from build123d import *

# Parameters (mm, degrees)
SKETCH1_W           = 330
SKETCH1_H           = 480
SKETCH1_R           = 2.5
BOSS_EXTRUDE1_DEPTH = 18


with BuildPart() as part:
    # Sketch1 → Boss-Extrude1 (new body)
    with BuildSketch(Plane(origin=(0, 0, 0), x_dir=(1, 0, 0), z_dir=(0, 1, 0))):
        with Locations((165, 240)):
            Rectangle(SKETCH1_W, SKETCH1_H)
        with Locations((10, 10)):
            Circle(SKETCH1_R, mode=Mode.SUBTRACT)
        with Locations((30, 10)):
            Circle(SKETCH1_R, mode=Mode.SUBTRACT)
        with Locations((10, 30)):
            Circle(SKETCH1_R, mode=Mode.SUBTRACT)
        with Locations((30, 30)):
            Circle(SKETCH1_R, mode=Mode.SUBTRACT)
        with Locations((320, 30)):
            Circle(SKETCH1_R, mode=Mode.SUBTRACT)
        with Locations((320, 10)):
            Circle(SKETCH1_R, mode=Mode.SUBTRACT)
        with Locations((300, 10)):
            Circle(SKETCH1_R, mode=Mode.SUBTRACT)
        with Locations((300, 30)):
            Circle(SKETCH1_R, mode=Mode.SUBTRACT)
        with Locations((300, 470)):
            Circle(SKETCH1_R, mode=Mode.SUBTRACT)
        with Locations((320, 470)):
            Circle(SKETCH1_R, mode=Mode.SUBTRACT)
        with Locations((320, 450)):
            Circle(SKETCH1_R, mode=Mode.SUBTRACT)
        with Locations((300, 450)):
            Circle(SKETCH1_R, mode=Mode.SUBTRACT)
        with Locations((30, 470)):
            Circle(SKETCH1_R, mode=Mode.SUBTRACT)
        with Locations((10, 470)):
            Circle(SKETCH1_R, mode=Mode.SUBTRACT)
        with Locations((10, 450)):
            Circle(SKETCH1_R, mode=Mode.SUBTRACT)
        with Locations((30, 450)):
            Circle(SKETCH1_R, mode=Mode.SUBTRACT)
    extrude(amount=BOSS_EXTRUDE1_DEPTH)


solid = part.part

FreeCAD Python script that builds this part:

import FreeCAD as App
import Part
import Sketcher

V = App.Vector

doc = App.newDocument("Part")
body = doc.addObject("PartDesign::Body", "Body")

sketch1 = doc.addObject("Sketcher::SketchObject", "Sketch")
body.addObject(sketch1)
sketch1.AttachmentSupport = (doc.XZ_Plane, [""])
sketch1.MapMode = "FlatFace"
sketch1.addGeometry([
    Part.LineSegment(V(0, -480, 0), V(0, 0, 0)),
    Part.LineSegment(V(0, 0, 0), V(330, 0, 0)),
    Part.LineSegment(V(330, 0, 0), V(330, -480, 0)),
    Part.LineSegment(V(330, -480, 0), V(0, -480, 0)),
    Part.Circle(V(10, -10, 0), V(0, 0, 1), 2.5),
    Part.Circle(V(10, -30, 0), V(0, 0, 1), 2.5),
    Part.Circle(V(30, -10, 0), V(0, 0, 1), 2.5),
    Part.Circle(V(30, -30, 0), V(0, 0, 1), 2.5),
    Part.Circle(V(300, -10, 0), V(0, 0, 1), 2.5),
    Part.Circle(V(300, -30, 0), V(0, 0, 1), 2.5),
    Part.Circle(V(320, -10, 0), V(0, 0, 1), 2.5),
    Part.Circle(V(320, -30, 0), V(0, 0, 1), 2.5),
    Part.Circle(V(10, -450, 0), V(0, 0, 1), 2.5),
    Part.Circle(V(10, -470, 0), V(0, 0, 1), 2.5),
    Part.Circle(V(30, -450, 0), V(0, 0, 1), 2.5),
    Part.Circle(V(30, -470, 0), V(0, 0, 1), 2.5),
    Part.Circle(V(300, -450, 0), V(0, 0, 1), 2.5),
    Part.Circle(V(300, -470, 0), V(0, 0, 1), 2.5),
    Part.Circle(V(320, -450, 0), V(0, 0, 1), 2.5),
    Part.Circle(V(320, -470, 0), V(0, 0, 1), 2.5),
], False)
sketch1.addConstraint([
    Sketcher.Constraint("Coincident", 0, 2, 1, 1),
    Sketcher.Constraint("Coincident", 1, 2, 2, 1),
    Sketcher.Constraint("Coincident", 2, 2, 3, 1),
    Sketcher.Constraint("Coincident", 3, 2, 0, 1),
    Sketcher.Constraint("Vertical", 0),
    Sketcher.Constraint("Horizontal", 1),
    Sketcher.Constraint("Vertical", 2),
    Sketcher.Constraint("Horizontal", 3),
    Sketcher.Constraint("Coincident", 0, 2, -1, 1),
    Sketcher.Constraint("Equal", 4, 5),
    Sketcher.Constraint("Equal", 5, 6),
    Sketcher.Constraint("Equal", 6, 7),
    Sketcher.Constraint("Equal", 7, 8),
    Sketcher.Constraint("Equal", 8, 9),
    Sketcher.Constraint("Equal", 9, 10),
    Sketcher.Constraint("Equal", 10, 11),
    Sketcher.Constraint("Equal", 11, 12),
    Sketcher.Constraint("Equal", 12, 13),
    Sketcher.Constraint("Equal", 13, 14),
    Sketcher.Constraint("Equal", 14, 15),
    Sketcher.Constraint("Equal", 15, 16),
    Sketcher.Constraint("Equal", 16, 17),
    Sketcher.Constraint("Equal", 17, 18),
    Sketcher.Constraint("Equal", 18, 19),
    Sketcher.Constraint("Horizontal", 4, 3, 6, 3),
    Sketcher.Constraint("Horizontal", 5, 3, 7, 3),
    Sketcher.Constraint("Horizontal", 6, 3, 8, 3),
    Sketcher.Constraint("Horizontal", 7, 3, 9, 3),
    Sketcher.Constraint("Horizontal", 8, 3, 10, 3),
    Sketcher.Constraint("Horizontal", 9, 3, 11, 3),
    Sketcher.Constraint("Horizontal", 12, 3, 14, 3),
    Sketcher.Constraint("Horizontal", 13, 3, 15, 3),
    Sketcher.Constraint("Horizontal", 14, 3, 16, 3),
    Sketcher.Constraint("Horizontal", 15, 3, 17, 3),
    Sketcher.Constraint("Horizontal", 16, 3, 18, 3),
    Sketcher.Constraint("Horizontal", 17, 3, 19, 3),
    Sketcher.Constraint("Vertical", 4, 3, 5, 3),
    Sketcher.Constraint("Vertical", 6, 3, 7, 3),
    Sketcher.Constraint("Vertical", 8, 3, 9, 3),
    Sketcher.Constraint("Vertical", 10, 3, 11, 3),
    Sketcher.Constraint("Vertical", 5, 3, 12, 3),
    Sketcher.Constraint("Vertical", 12, 3, 13, 3),
    Sketcher.Constraint("Vertical", 7, 3, 14, 3),
    Sketcher.Constraint("Vertical", 14, 3, 15, 3),
    Sketcher.Constraint("Vertical", 9, 3, 16, 3),
    Sketcher.Constraint("Vertical", 16, 3, 17, 3),
    Sketcher.Constraint("Vertical", 11, 3, 18, 3),
    Sketcher.Constraint("Vertical", 18, 3, 19, 3),
    Sketcher.Constraint("Diameter", 4, 5.0),
    Sketcher.Constraint("DistanceX", 1, 1, 1, 2, 330.0),
    Sketcher.Constraint("DistanceY", 0, 1, 0, 2, 480.0),
    Sketcher.Constraint("DistanceX", -1, 1, 4, 3, 10.0),
    Sketcher.Constraint("DistanceY", 4, 3, -1, 1, 10.0),
    Sketcher.Constraint("DistanceY", 5, 3, -1, 1, 30.0),
    Sketcher.Constraint("DistanceX", -1, 1, 6, 3, 30.0),
    Sketcher.Constraint("DistanceX", -1, 1, 8, 3, 300.0),
    Sketcher.Constraint("DistanceX", -1, 1, 10, 3, 320.0),
    Sketcher.Constraint("DistanceY", 12, 3, -1, 1, 450.0),
    Sketcher.Constraint("DistanceY", 13, 3, -1, 1, 470.0),
])
pad1 = doc.addObject("PartDesign::Pad", "Pad")
body.addObject(pad1)
pad1.Profile = sketch1
pad1.Length = 18
pad1.Reversed = True

doc.recompute()
